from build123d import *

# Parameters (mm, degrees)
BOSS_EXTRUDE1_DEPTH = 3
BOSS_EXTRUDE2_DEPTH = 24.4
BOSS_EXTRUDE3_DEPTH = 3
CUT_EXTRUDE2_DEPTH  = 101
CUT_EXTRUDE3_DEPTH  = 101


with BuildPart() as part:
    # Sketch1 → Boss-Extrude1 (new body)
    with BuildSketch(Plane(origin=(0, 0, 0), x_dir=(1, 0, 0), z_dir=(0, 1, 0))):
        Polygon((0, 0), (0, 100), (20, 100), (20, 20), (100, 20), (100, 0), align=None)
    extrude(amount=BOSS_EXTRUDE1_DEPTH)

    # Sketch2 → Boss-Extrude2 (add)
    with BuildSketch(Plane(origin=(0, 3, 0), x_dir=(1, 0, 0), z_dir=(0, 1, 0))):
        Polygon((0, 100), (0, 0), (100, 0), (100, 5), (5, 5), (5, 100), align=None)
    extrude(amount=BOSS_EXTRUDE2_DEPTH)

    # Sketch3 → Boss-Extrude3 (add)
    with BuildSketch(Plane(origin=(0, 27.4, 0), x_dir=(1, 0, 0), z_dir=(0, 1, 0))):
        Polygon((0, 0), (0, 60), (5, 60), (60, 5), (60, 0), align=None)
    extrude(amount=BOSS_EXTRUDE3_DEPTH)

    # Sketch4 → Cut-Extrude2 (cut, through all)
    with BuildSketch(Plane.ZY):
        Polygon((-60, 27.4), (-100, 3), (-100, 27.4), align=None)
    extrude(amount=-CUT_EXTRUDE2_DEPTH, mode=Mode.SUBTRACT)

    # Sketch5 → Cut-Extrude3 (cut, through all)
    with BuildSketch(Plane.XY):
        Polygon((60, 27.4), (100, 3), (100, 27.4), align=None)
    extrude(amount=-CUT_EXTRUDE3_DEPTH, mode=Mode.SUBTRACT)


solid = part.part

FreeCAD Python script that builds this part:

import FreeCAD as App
import Part
import Sketcher
from FreeCAD import Vector

doc = App.newDocument("Part")
params = doc.addObject("Spreadsheet::Sheet", "Params")
for row, (alias, value) in enumerate([
    ("sketch1_width", "100 mm"),
    ("sketch1_width2", "80 mm"),
    ("pad1_length", "3 mm"),
    ("sketch2_width", "100 mm"),
    ("sketch2_width2", "95 mm"),
    ("pad2_length", "24.4 mm"),
    ("sketch3_width", "60 mm"),
    ("sketch3_width2", "5 mm"),
    ("pad3_length", "3 mm"),
    ("sketch4_height", "40 mm"),
    ("sketch4_width", "24.4 mm"),
    ("sketch5_width", "40 mm"),
    ("sketch5_height", "24.4 mm"),
], start=1):
    params.set(f"A{row}", alias)
    params.set(f"B{row}", "=" + value)
    params.setAlias(f"B{row}", alias)

body = doc.addObject("PartDesign::Body", "Body")

sketch1 = doc.addObject("Sketcher::SketchObject", "Sketch")
body.addObject(sketch1)
sketch1.AttachmentSupport = (doc.XZ_Plane, [""])
sketch1.MapMode = "FlatFace"
sketch1.addGeometry(Part.LineSegment(Vector(0, -100, 0), Vector(0, 0, 0)), False)
sketch1.addGeometry(Part.LineSegment(Vector(0, 0, 0), Vector(100, 0, 0)), False)
sketch1.addGeometry(Part.LineSegment(Vector(100, 0, 0), Vector(100, -20, 0)), False)
sketch1.addGeometry(Part.LineSegment(Vector(100, -20, 0), Vector(20, -20, 0)), False)
sketch1.addGeometry(Part.LineSegment(Vector(20, -20, 0), Vector(20, -100, 0)), False)
sketch1.addGeometry(Part.LineSegment(Vector(20, -100, 0), Vector(0, -100, 0)), False)
sketch1.addConstraint(Sketcher.Constraint("Coincident", 0, 2, 1, 1))
sketch1.addConstraint(Sketcher.Constraint("Coincident", 1, 2, 2, 1))
sketch1.addConstraint(Sketcher.Constraint("Coincident", 2, 2, 3, 1))
sketch1.addConstraint(Sketcher.Constraint("Coincident", 3, 2, 4, 1))
sketch1.addConstraint(Sketcher.Constraint("Coincident", 4, 2, 5, 1))
sketch1.addConstraint(Sketcher.Constraint("Coincident", 5, 2, 0, 1))
sketch1.addConstraint(Sketcher.Constraint("Vertical", 0))
sketch1.addConstraint(Sketcher.Constraint("Horizontal", 1))
sketch1.addConstraint(Sketcher.Constraint("Vertical", 2))
sketch1.addConstraint(Sketcher.Constraint("Horizontal", 3))
sketch1.addConstraint(Sketcher.Constraint("Vertical", 4))
sketch1.addConstraint(Sketcher.Constraint("Horizontal", 5))
sketch1.addConstraint(Sketcher.Constraint("Coincident", 0, 2, -1, 1))
sketch1.addConstraint(Sketcher.Constraint("Equal", 1, 0))
sketch1.addConstraint(Sketcher.Constraint("Equal", 5, 2))
sketch1.addConstraint(Sketcher.Constraint("DistanceX", 1, 1, 1, 2, 100.0))
sketch1.addConstraint(Sketcher.Constraint("DistanceX", 3, 2, 3, 1, 80.0))
sketch1.setExpression("Constraints[15]", "Params.sketch1_width")
sketch1.setExpression("Constraints[16]", "Params.sketch1_width2")
pad1 = doc.addObject("PartDesign::Pad", "Pad")
body.addObject(pad1)
pad1.Profile = sketch1
pad1.setExpression("Length", "Params.pad1_length")
pad1.Reversed = True

sketch2 = doc.addObject("Sketcher::SketchObject", "Sketch001")
body.addObject(sketch2)
sketch2.AttachmentSupport = (doc.XZ_Plane, [""])
sketch2.MapMode = "FlatFace"
sketch2.AttachmentOffset = App.Placement(Vector(0, 0, -3), App.Rotation())
sketch2.addGeometry(Part.LineSegment(Vector(0, -100, 0), Vector(0, 0, 0)), False)
sketch2.addGeometry(Part.LineSegment(Vector(0, 0, 0), Vector(100, 0, 0)), False)
sketch2.addGeometry(Part.LineSegment(Vector(100, 0, 0), Vector(100, -5, 0)), False)
sketch2.addGeometry(Part.LineSegment(Vector(100, -5, 0), Vector(5, -5, 0)), False)
sketch2.addGeometry(Part.LineSegment(Vector(5, -5, 0), Vector(5, -100, 0)), False)
sketch2.addGeometry(Part.LineSegment(Vector(5, -100, 0), Vector(0, -100, 0)), False)
sketch2.addConstraint(Sketcher.Constraint("Coincident", 0, 2, 1, 1))
sketch2.addConstraint(Sketcher.Constraint("Coincident", 1, 2, 2, 1))
sketch2.addConstraint(Sketcher.Constraint("Coincident", 2, 2, 3, 1))
sketch2.addConstraint(Sketcher.Constraint("Coincident", 3, 2, 4, 1))
sketch2.addConstraint(Sketcher.Constraint("Coincident", 4, 2, 5, 1))
sketch2.addConstraint(Sketcher.Constraint("Coincident", 5, 2, 0, 1))
sketch2.addConstraint(Sketcher.Constraint("Vertical", 0))
sketch2.addConstraint(Sketcher.Constraint("Horizontal", 1))
sketch2.addConstraint(Sketcher.Constraint("Vertical", 2))
sketch2.addConstraint(Sketcher.Constraint("Horizontal", 3))
sketch2.addConstraint(Sketcher.Constraint("Vertical", 4))
sketch2.addConstraint(Sketcher.Constraint("Horizontal", 5))
sketch2.addConstraint(Sketcher.Constraint("Coincident", 0, 2, -1, 1))
sketch2.addConstraint(Sketcher.Constraint("Equal", 1, 0))
sketch2.addConstraint(Sketcher.Constraint("Equal", 5, 2))
sketch2.addConstraint(Sketcher.Constraint("DistanceX", 1, 1, 1, 2, 100.0))
sketch2.addConstraint(Sketcher.Constraint("DistanceX", 3, 2, 3, 1, 95.0))
sketch2.setExpression("Constraints[15]", "Params.sketch2_width")
sketch2.setExpression("Constraints[16]", "Params.sketch2_width2")
pad2 = doc.addObject("PartDesign::Pad", "Pad001")
body.addObject(pad2)
pad2.Profile = sketch2
pad2.setExpression("Length", "Params.pad2_length")
pad2.Reversed = True

sketch3 = doc.addObject("Sketcher::SketchObject", "Sketch002")
body.addObject(sketch3)
sketch3.AttachmentSupport = (doc.XZ_Plane, [""])
sketch3.MapMode = "FlatFace"
sketch3.AttachmentOffset = App.Placement(Vector(0, 0, -27.4), App.Rotation())
sketch3.addGeometry(Part.LineSegment(Vector(0, -60, 0), Vector(0, 0, 0)), False)
sketch3.addGeometry(Part.LineSegment(Vector(0, 0, 0), Vector(60, 0, 0)), False)
sketch3.addGeometry(Part.LineSegment(Vector(60, 0, 0), Vector(60, -5, 0)), False)
sketch3.addGeometry(Part.LineSegment(Vector(60, -5, 0), Vector(5, -60, 0)), False)
sketch3.addGeometry(Part.LineSegment(Vector(5, -60, 0), Vector(0, -60, 0)), False)
sketch3.addConstraint(Sketcher.Constraint("Coincident", 0, 2, 1, 1))
sketch3.addConstraint(Sketcher.Constraint("Coincident", 1, 2, 2, 1))
sketch3.addConstraint(Sketcher.Constraint("Coincident", 2, 2, 3, 1))
sketch3.addConstraint(Sketcher.Constraint("Coincident", 3, 2, 4, 1))
sketch3.addConstraint(Sketcher.Constraint("Coincident", 4, 2, 0, 1))
sketch3.addConstraint(Sketcher.Constraint("Vertical", 0))
sketch3.addConstraint(Sketcher.Constraint("Horizontal", 1))
sketch3.addConstraint(Sketcher.Constraint("Vertical", 2))
sketch3.addConstraint(Sketcher.Constraint("Horizontal", 4))
sketch3.addConstraint(Sketcher.Constraint("Coincident", 0, 2, -1, 1))
sketch3.addConstraint(Sketcher.Constraint("Equal", 1, 0))
sketch3.addConstraint(Sketcher.Constraint("Equal", 4, 2))
sketch3.addConstraint(Sketcher.Constraint("DistanceX", 1, 1, 1, 2, 60.0))
sketch3.addConstraint(Sketcher.Constraint("DistanceX", 4, 2, 4, 1, 5.0))
sketch3.setExpression("Constraints[12]", "Params.sketch3_width")
sketch3.setExpression("Constraints[13]", "Params.sketch3_width2")
pad3 = doc.addObject("PartDesign::Pad", "Pad002")
body.addObject(pad3)
pad3.Profile = sketch3
pad3.setExpression("Length", "Params.pad3_length")
pad3.Reversed = True

sketch4 = doc.addObject("Sketcher::SketchObject", "Sketch003")
body.addObject(sketch4)
sketch4.AttachmentSupport = (doc.YZ_Plane, [""])
sketch4.MapMode = "FlatFace"
sketch4.addGeometry(Part.LineSegment(Vector(3, -100, 0), Vector(27, -60, 0)), False)
sketch4.addGeometry(Part.LineSegment(Vector(27, -60, 0), Vector(27, -100, 0)), False)
sketch4.addGeometry(Part.LineSegment(Vector(27, -100, 0), Vector(3, -100, 0)), False)
sketch4.addConstraint(Sketcher.Constraint("Coincident", 0, 2, 1, 1))
sketch4.addConstraint(Sketcher.Constraint("Coincident", 1, 2, 2, 1))
sketch4.addConstraint(Sketcher.Constraint("Coincident", 2, 2, 0, 1))
sketch4.addConstraint(Sketcher.Constraint("Vertical", 1))
sketch4.addConstraint(Sketcher.Constraint("Horizontal", 2))
sketch4.addConstraint(Sketcher.Constraint("DistanceY", 1, 2, 1, 1, 40.0))
sketch4.addConstraint(Sketcher.Constraint("DistanceX", 2, 2, 2, 1, 24.4))
sketch4.addConstraint(Sketcher.Constraint("DistanceY", 0, 2, -1, 1, 60.0))
sketch4.addConstraint(Sketcher.Constraint("DistanceX", -1, 1, 2, 2, 3.0))
sketch4.setExpression("Constraints[5]", "Params.sketch4_height")
sketch4.setExpression("Constraints[6]", "Params.sketch4_width")
pocket1 = doc.addObject("PartDesign::Pocket", "Pocket")
body.addObject(pocket1)
pocket1.Profile = sketch4
pocket1.Type = "ThroughAll"
pocket1.Reversed = True

sketch5 = doc.addObject("Sketcher::SketchObject", "Sketch004")
body.addObject(sketch5)
sketch5.AttachmentSupport = (doc.XY_Plane, [""])
sketch5.MapMode = "FlatFace"
sketch5.addGeometry(Part.LineSegment(Vector(60, 27, 0), Vector(100, 3, 0)), False)
sketch5.addGeometry(Part.LineSegment(Vector(100, 3, 0), Vector(100, 27, 0)), False)
sketch5.addGeometry(Part.LineSegment(Vector(100, 27, 0), Vector(60, 27, 0)), False)
sketch5.addConstraint(Sketcher.Constraint("Coincident", 0, 2, 1, 1))
sketch5.addConstraint(Sketcher.Constraint("Coincident", 1, 2, 2, 1))
sketch5.addConstraint(Sketcher.Constraint("Coincident", 2, 2, 0, 1))
sketch5.addConstraint(Sketcher.Constraint("Vertical", 1))
sketch5.addConstraint(Sketcher.Constraint("Horizontal", 2))
sketch5.addConstraint(Sketcher.Constraint("DistanceX", 2, 2, 2, 1, 40.0))
sketch5.addConstraint(Sketcher.Constraint("DistanceY", 1, 1, 1, 2, 24.4))
sketch5.addConstraint(Sketcher.Constraint("DistanceX", -1, 1, 0, 2, 100.0))
sketch5.addConstraint(Sketcher.Constraint("DistanceY", -1, 1, 0, 2, 3.0))
sketch5.setExpression("Constraints[5]", "Params.sketch5_width")
sketch5.setExpression("Constraints[6]", "Params.sketch5_height")
pocket2 = doc.addObject("PartDesign::Pocket", "Pocket001")
body.addObject(pocket2)
pocket2.Profile = sketch5
pocket2.Type = "ThroughAll"

doc.recompute()
